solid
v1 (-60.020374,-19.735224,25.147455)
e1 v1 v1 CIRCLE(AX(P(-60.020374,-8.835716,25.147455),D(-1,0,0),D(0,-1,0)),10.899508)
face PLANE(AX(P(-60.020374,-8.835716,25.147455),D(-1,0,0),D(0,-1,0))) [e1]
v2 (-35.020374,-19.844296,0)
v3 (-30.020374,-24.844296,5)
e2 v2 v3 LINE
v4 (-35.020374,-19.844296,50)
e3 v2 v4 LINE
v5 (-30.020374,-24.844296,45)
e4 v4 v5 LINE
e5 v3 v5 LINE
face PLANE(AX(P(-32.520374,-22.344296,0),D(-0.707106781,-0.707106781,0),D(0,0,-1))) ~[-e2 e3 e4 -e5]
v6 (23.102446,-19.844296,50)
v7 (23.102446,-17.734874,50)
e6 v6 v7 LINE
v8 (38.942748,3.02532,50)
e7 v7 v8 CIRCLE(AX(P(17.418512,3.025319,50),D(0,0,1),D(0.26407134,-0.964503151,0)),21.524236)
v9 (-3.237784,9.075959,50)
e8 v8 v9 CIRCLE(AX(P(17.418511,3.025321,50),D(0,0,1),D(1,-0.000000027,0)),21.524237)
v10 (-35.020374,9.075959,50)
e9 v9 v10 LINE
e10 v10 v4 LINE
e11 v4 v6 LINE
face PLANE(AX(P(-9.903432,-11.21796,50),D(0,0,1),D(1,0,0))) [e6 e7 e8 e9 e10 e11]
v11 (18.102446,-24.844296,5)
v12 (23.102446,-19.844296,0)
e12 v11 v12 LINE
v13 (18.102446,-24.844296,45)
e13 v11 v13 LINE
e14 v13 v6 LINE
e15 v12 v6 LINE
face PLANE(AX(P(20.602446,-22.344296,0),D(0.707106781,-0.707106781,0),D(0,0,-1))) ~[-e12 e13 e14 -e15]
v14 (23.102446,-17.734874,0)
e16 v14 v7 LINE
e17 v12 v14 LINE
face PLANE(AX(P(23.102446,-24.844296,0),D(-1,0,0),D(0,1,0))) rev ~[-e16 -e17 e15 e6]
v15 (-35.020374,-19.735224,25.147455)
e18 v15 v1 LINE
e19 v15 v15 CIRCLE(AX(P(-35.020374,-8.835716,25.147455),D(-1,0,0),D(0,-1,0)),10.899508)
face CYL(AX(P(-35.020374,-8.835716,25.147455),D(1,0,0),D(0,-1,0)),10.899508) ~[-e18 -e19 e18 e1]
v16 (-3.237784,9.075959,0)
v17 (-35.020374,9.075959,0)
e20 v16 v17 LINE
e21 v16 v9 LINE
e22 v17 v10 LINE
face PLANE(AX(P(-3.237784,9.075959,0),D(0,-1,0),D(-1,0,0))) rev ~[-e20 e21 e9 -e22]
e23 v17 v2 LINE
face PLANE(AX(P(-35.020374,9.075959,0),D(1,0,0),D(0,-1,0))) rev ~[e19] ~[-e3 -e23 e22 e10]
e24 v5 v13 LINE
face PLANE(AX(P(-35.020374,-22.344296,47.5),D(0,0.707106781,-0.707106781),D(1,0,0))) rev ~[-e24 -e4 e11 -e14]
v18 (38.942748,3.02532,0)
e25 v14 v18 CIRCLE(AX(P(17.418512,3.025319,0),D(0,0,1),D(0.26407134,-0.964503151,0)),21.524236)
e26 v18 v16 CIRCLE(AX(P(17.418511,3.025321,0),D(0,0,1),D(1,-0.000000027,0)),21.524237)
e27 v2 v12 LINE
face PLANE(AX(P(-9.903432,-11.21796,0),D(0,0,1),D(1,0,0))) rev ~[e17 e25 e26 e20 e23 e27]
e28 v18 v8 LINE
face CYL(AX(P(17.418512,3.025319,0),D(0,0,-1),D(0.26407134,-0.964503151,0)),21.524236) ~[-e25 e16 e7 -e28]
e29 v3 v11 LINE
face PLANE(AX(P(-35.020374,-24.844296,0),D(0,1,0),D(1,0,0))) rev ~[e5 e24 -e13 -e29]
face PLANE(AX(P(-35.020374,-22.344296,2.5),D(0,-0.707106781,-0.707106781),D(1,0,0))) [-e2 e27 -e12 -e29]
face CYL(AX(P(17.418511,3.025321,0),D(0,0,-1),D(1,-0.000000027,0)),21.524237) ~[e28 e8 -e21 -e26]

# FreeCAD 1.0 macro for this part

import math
import FreeCAD as App
import Part
import Sketcher

V = App.Vector
Q = App.Units.Quantity


def edges_at(feature, points):
    """Names of the edges that pass closest to the given points."""
    edges = feature.Shape.Edges
    near = lambda p: min(range(len(edges)), key=lambda i: edges[i].distToShape(Part.Vertex(*p))[0])
    return sorted({f"Edge{near(p) + 1}" for p in points})

doc = App.newDocument("Part")
body = doc.addObject("PartDesign::Body", "Body")

sketch1 = doc.addObject("Sketcher::SketchObject", "Sketch")
body.addObject(sketch1)
sketch1.AttachmentSupport = (doc.XY_Plane, [""])
sketch1.MapMode = "FlatFace"
sketch1.addGeometry([
    Part.LineSegment(V(-35, 9, 0), V(-35, -25, 0)),
    Part.LineSegment(V(-35, -25, 0), V(23, -25, 0)),
    Part.LineSegment(V(23, -25, 0), V(23, -18, 0)),
    Part.ArcOfCircle(Part.Circle(V(17, 3, 0), V(0, 0, 1), 22), math.radians(-75), math.radians(0)),
    Part.ArcOfCircle(Part.Circle(V(17, 3, 0), V(0, 0, 1), 22), math.radians(0), math.radians(164)),
    Part.LineSegment(V(-3, 9, 0), V(-35, 9, 0)),
], False)
sketch1.addConstraint([
    Sketcher.Constraint("Coincident", 0, 2, 1, 1),
    Sketcher.Constraint("Coincident", 1, 2, 2, 1),
    Sketcher.Constraint("Coincident", 2, 2, 3, 1),
    Sketcher.Constraint("Tangent", 3, 2, 4, 1),
    Sketcher.Constraint("Coincident", 4, 2, 5, 1),
    Sketcher.Constraint("Coincident", 5, 2, 0, 1),
    Sketcher.Constraint("Vertical", 0),
    Sketcher.Constraint("Horizontal", 1),
    Sketcher.Constraint("Vertical", 2),
    Sketcher.Constraint("Horizontal", 5),
    Sketcher.Constraint("Equal", 3, 4),
    Sketcher.Constraint("Horizontal", 4, 3, 3, 2),
    Sketcher.Constraint("Radius", 3, Q("21.524236 mm")),
    Sketcher.Constraint("DistanceX", 1, 1, 1, 2, Q("58.12282 mm")),
    Sketcher.Constraint("DistanceX", 5, 2, 5, 1, Q("31.78259 mm")),
    Sketcher.Constraint("DistanceY", 2, 1, 2, 2, Q("7.109422 mm")),
    Sketcher.Constraint("DistanceX", 2, 2, 3, 2, Q("15.840302 mm")),
    Sketcher.Constraint("DistanceY", -1, 1, 3, 3, Q("3.025319 mm")),
    Sketcher.Constraint("DistanceX", -1, 1, 4, 3, Q("17.418511 mm")),
])
pad1 = doc.addObject("PartDesign::Pad", "Pad")
body.addObject(pad1)
pad1.Profile = sketch1
pad1.Length = 50

sketch2 = doc.addObject("Sketcher::SketchObject", "Sketch001")
body.addObject(sketch2)
sketch2.AttachmentSupport = (doc.YZ_Plane, [""])
sketch2.MapMode = "FlatFace"
sketch2.AttachmentOffset = App.Placement(V(0, 0, -35.020374), App.Rotation())
sketch2.addGeometry(Part.Circle(V(-9, 25, 0), V(0, 0, 1), 11), False)
sketch2.addConstraint([
    Sketcher.Constraint("Diameter", 0, Q("21.799016 mm")),
    Sketcher.Constraint("DistanceX", 0, 3, -1, 1, Q("8.835716 mm")),
    Sketcher.Constraint("DistanceY", -1, 1, 0, 3, Q("25.147455 mm")),
])
pad2 = doc.addObject("PartDesign::Pad", "Pad001")
body.addObject(pad2)
pad2.Profile = sketch2
pad2.Length = 25
pad2.Reversed = True
doc.recompute()

chamfer = doc.addObject("PartDesign::Chamfer", "Chamfer")
body.addObject(chamfer)
chamfer.Base = (pad2, edges_at(pad2, [
    (23.102, -24.844, 25),
    (-35.02, -24.844, 25),
    (-5.959, -24.844, 0),
    (-5.959, -24.844, 50),
]))
chamfer.Size = 5

doc.recompute()
